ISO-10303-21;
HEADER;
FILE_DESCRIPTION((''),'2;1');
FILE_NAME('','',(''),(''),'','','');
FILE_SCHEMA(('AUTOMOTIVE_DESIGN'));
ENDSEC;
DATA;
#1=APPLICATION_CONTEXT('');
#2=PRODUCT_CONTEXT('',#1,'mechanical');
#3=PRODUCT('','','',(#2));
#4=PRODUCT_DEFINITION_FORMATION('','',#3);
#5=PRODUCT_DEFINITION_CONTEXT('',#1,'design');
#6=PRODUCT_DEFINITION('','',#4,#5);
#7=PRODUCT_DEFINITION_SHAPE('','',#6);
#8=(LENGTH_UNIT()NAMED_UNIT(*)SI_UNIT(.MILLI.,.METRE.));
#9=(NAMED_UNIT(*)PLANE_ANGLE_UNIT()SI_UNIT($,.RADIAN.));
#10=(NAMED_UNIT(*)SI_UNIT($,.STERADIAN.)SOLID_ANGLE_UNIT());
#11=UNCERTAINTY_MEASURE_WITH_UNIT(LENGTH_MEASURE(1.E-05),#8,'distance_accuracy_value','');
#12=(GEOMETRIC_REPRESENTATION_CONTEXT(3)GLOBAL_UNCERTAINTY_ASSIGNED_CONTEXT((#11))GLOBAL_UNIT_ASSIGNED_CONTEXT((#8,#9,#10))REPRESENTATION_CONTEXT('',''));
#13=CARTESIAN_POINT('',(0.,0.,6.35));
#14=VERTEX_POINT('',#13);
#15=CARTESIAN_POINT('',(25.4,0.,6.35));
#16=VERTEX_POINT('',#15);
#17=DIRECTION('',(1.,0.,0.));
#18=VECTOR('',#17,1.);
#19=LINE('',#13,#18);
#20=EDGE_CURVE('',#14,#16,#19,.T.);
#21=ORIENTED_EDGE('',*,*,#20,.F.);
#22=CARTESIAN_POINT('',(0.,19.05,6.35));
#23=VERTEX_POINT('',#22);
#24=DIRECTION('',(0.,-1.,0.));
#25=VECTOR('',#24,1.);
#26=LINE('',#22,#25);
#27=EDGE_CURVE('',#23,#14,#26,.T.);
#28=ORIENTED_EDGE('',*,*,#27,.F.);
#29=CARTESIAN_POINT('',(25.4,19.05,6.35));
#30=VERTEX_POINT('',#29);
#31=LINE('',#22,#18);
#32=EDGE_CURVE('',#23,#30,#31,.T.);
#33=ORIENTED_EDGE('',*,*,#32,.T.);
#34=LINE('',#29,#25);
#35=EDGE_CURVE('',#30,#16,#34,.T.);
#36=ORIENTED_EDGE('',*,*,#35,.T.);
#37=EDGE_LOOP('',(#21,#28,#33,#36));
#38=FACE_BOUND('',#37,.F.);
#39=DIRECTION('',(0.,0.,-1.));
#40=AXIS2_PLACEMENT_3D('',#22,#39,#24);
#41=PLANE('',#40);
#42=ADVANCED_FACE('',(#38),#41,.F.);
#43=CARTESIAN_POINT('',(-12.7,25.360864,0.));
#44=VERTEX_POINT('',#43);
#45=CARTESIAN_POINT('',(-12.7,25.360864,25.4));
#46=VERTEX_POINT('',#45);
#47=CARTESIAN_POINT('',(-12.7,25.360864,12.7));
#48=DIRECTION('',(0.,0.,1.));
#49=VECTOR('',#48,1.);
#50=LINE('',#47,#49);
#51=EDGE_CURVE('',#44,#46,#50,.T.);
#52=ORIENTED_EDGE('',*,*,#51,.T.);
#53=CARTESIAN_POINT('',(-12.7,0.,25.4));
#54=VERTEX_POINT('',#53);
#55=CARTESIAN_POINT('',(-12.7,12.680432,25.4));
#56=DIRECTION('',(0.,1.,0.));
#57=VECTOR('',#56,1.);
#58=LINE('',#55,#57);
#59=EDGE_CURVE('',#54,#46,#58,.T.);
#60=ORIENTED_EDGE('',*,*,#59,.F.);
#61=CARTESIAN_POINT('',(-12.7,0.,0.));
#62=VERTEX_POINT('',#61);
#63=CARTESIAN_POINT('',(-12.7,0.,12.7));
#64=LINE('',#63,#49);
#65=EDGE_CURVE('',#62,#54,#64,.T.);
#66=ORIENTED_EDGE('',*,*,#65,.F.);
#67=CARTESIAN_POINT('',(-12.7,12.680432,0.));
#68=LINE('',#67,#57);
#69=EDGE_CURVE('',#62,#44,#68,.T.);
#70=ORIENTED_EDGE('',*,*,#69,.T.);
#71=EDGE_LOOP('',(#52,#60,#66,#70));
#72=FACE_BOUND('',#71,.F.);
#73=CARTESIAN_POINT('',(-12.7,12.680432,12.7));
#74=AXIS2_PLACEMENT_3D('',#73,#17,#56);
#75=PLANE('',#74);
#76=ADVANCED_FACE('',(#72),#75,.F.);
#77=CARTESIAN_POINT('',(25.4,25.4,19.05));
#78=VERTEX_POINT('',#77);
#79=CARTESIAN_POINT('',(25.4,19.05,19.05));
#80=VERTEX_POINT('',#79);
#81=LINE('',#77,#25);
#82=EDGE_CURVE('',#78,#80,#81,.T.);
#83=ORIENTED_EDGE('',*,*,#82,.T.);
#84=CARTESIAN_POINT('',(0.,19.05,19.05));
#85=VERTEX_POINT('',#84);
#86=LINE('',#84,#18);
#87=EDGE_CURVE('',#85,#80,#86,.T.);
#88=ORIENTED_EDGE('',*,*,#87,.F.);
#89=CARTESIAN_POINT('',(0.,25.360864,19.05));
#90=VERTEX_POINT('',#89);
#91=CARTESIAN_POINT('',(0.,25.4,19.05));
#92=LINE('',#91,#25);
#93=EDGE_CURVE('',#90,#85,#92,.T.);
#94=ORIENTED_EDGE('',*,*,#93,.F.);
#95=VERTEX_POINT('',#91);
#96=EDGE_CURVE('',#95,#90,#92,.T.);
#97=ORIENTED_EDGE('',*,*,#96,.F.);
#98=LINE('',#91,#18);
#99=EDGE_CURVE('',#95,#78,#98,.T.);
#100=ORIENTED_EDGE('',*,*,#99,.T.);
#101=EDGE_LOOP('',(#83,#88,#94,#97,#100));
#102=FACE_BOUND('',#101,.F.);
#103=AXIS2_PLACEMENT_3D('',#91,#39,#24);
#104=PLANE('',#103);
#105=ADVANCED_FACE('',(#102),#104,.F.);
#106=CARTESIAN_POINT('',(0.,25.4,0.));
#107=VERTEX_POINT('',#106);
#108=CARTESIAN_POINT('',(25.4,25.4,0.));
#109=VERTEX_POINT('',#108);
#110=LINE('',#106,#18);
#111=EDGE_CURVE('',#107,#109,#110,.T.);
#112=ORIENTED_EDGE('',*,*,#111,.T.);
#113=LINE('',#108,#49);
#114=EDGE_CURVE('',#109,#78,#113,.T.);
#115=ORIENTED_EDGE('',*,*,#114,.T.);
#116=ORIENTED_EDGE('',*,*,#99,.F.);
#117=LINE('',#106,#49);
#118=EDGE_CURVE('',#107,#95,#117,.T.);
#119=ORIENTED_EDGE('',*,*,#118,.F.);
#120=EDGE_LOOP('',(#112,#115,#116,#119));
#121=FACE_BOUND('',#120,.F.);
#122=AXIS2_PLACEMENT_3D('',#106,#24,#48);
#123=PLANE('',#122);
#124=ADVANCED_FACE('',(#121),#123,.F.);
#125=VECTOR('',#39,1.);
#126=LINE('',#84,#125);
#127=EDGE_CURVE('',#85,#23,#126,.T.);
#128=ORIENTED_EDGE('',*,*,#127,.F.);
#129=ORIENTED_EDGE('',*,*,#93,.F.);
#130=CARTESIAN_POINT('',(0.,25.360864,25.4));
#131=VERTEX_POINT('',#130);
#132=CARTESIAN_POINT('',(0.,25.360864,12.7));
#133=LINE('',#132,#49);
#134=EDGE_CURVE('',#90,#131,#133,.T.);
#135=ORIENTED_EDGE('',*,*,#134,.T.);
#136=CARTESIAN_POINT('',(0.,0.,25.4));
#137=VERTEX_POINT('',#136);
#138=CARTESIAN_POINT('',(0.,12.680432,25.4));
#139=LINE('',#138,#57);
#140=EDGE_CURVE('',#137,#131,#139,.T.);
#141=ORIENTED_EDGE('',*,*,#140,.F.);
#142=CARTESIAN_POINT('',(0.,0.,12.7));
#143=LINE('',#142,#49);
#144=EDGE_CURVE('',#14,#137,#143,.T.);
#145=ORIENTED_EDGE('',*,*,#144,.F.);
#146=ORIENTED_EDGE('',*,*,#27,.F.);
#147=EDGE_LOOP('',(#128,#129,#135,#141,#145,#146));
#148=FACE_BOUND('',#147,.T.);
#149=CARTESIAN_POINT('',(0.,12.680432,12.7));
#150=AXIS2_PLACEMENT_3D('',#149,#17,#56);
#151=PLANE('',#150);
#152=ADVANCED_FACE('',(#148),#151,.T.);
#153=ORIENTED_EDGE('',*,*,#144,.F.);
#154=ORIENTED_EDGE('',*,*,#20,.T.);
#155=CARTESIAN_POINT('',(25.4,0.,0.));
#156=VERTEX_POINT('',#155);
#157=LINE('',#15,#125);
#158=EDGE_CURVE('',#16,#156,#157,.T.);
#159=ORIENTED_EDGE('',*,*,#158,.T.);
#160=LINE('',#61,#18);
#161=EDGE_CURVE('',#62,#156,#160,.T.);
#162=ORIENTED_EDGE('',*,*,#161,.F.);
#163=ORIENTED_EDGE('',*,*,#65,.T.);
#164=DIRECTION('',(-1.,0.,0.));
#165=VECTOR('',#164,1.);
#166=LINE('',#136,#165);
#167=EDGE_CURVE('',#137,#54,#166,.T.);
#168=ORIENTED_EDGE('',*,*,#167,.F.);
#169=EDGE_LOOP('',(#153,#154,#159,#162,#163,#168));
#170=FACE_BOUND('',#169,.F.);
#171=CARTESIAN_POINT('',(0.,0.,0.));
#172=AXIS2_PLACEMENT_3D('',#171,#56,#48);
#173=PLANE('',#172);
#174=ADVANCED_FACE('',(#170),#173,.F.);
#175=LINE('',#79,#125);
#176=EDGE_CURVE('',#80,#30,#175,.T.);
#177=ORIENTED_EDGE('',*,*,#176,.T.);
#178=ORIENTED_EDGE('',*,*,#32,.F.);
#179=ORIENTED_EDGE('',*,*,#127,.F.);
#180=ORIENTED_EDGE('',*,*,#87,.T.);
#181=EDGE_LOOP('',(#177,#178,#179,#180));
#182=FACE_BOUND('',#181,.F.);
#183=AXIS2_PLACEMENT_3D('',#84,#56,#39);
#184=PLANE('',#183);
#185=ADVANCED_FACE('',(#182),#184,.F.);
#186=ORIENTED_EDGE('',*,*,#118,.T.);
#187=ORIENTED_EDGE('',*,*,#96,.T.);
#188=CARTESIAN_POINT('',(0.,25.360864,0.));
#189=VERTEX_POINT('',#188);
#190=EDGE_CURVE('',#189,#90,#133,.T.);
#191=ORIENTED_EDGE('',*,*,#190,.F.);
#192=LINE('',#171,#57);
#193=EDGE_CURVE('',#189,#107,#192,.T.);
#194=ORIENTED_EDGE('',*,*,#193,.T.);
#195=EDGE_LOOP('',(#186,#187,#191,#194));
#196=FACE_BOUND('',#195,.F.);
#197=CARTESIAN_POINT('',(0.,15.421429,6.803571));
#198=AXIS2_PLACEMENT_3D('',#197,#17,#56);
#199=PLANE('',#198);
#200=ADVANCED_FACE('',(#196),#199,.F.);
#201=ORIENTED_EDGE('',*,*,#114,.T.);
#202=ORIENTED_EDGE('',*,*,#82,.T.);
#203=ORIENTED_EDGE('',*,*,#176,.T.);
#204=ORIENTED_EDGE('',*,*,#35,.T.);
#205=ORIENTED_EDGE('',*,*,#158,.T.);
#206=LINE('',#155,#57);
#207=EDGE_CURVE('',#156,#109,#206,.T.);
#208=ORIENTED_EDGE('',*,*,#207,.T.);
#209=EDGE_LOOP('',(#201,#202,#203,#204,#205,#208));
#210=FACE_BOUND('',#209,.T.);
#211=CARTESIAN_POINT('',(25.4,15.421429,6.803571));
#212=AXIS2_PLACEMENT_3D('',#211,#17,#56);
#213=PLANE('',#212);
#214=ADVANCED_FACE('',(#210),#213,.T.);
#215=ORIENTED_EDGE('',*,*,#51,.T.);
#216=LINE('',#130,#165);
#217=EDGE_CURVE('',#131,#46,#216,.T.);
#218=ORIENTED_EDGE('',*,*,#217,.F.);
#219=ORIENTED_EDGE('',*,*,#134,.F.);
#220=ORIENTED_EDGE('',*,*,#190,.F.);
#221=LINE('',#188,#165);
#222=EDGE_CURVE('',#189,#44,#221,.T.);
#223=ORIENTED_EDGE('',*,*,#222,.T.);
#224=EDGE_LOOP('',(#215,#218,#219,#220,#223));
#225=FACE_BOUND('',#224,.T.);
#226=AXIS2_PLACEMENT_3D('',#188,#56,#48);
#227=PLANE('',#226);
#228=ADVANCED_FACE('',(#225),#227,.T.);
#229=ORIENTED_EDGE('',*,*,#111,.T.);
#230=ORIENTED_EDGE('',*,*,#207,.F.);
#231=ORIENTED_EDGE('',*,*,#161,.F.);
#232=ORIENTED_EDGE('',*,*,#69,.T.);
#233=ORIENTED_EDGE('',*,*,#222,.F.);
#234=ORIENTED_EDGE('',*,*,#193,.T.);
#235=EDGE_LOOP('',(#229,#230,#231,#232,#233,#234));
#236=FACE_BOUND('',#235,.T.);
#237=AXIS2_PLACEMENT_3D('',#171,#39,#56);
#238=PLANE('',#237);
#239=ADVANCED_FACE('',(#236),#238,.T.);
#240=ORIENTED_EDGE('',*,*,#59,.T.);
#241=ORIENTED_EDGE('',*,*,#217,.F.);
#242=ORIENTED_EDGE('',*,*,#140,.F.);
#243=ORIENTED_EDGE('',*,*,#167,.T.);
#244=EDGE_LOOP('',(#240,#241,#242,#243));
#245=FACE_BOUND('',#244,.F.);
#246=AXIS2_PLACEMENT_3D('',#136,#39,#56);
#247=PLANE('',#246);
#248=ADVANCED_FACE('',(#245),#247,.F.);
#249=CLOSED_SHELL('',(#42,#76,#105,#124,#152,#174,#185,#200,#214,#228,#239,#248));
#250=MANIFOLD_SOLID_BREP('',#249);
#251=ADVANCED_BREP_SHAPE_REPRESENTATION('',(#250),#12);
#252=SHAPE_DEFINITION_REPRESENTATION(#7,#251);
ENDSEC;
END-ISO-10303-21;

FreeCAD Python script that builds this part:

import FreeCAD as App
import Part
import Sketcher
Q = App.Units.Quantity


def add_polygon(sketch, points):
    """Adds a closed chain of lines whose ends are joined by coincident constraints."""
    first, n = sketch.GeometryCount, len(points)
    for a, b in zip(points, points[1:] + points[:1]):
        sketch.addGeometry(Part.LineSegment(App.Vector(*a, 0), App.Vector(*b, 0)), False)
    for i in range(n):
        sketch.addConstraint(Sketcher.Constraint("Coincident", first + i, 2, first + (i + 1) % n, 1))

doc = App.newDocument("Part")
params = doc.addObject("Spreadsheet::Sheet", "Params")
for row, (alias, value) in enumerate([
    ("sketch1_width", "1 in"),
    ("sketch1_height", "0.5 in"),
    ("pad1_length", "1 in"),
    ("sketch2_height", "1 in"),
    ("pad2_length", "0.5 in"),
], start=1):
    params.set(f"A{row}", alias)
    params.set(f"B{row}", "=" + value)
    params.setAlias(f"B{row}", alias)

body = doc.addObject("PartDesign::Body", "Body")

# Sketch on YZ plane
sketch1 = body.newObject("Sketcher::SketchObject", "Sketch")
sketch1.AttachmentSupport = (doc.getObject("YZ_Plane"), [""])
sketch1.MapMode = "FlatFace"
add_polygon(sketch1, [(0, 6.35), (0, 0), (25.4, 0), (25.4, 19.05), (19.05, 19.05), (19.05, 6.35)])  # lines 0-5
sketch1.addConstraint([
    Sketcher.Constraint("Vertical", 0),
    Sketcher.Constraint("Horizontal", 1),
    Sketcher.Constraint("Vertical", 2),
    Sketcher.Constraint("Horizontal", 3),
    Sketcher.Constraint("Vertical", 4),
    Sketcher.Constraint("Horizontal", 5),
    Sketcher.Constraint("Coincident", 0, 2, -1, 1),
    Sketcher.Constraint("Equal", 3, 0),
    Sketcher.Constraint("Equal", 5, 2),
    Sketcher.Constraint("DistanceX", 1, 1, 1, 2, Q("1 in")),
    Sketcher.Constraint("DistanceY", 4, 2, 4, 1, Q("0.5 in")),
])
sketch1.setExpression("Constraints[15]", "Params.sketch1_width")
sketch1.setExpression("Constraints[16]", "Params.sketch1_height")
pad1 = body.newObject("PartDesign::Pad", "Pad")
pad1.Profile = sketch1
pad1.setExpression("Length", "Params.pad1_length")

# Sketch on YZ plane
sketch2 = body.newObject("Sketcher::SketchObject", "Sketch001")
sketch2.AttachmentSupport = (doc.getObject("YZ_Plane"), [""])
sketch2.MapMode = "FlatFace"
add_polygon(sketch2, [(0, 25.4), (0, 0), (25.360864, 0), (25.360864, 25.4)])  # lines 0-3
sketch2.addConstraint([
    Sketcher.Constraint("Vertical", 0),
    Sketcher.Constraint("Horizontal", 1),
    Sketcher.Constraint("Vertical", 2),
    Sketcher.Constraint("Horizontal", 3),
    Sketcher.Constraint("Coincident", 0, 2, -1, 1),
    Sketcher.Constraint("DistanceY", 0, 2, 0, 1, Q("1 in")),
    Sketcher.Constraint("DistanceX", 1, 1, 1, 2, Q("25.360864 mm")),
])
sketch2.setExpression("Constraints[9]", "Params.sketch2_height")
pad2 = body.newObject("PartDesign::Pad", "Pad001")
pad2.Profile = sketch2
pad2.setExpression("Length", "Params.pad2_length")
pad2.Reversed = True

doc.recompute()
